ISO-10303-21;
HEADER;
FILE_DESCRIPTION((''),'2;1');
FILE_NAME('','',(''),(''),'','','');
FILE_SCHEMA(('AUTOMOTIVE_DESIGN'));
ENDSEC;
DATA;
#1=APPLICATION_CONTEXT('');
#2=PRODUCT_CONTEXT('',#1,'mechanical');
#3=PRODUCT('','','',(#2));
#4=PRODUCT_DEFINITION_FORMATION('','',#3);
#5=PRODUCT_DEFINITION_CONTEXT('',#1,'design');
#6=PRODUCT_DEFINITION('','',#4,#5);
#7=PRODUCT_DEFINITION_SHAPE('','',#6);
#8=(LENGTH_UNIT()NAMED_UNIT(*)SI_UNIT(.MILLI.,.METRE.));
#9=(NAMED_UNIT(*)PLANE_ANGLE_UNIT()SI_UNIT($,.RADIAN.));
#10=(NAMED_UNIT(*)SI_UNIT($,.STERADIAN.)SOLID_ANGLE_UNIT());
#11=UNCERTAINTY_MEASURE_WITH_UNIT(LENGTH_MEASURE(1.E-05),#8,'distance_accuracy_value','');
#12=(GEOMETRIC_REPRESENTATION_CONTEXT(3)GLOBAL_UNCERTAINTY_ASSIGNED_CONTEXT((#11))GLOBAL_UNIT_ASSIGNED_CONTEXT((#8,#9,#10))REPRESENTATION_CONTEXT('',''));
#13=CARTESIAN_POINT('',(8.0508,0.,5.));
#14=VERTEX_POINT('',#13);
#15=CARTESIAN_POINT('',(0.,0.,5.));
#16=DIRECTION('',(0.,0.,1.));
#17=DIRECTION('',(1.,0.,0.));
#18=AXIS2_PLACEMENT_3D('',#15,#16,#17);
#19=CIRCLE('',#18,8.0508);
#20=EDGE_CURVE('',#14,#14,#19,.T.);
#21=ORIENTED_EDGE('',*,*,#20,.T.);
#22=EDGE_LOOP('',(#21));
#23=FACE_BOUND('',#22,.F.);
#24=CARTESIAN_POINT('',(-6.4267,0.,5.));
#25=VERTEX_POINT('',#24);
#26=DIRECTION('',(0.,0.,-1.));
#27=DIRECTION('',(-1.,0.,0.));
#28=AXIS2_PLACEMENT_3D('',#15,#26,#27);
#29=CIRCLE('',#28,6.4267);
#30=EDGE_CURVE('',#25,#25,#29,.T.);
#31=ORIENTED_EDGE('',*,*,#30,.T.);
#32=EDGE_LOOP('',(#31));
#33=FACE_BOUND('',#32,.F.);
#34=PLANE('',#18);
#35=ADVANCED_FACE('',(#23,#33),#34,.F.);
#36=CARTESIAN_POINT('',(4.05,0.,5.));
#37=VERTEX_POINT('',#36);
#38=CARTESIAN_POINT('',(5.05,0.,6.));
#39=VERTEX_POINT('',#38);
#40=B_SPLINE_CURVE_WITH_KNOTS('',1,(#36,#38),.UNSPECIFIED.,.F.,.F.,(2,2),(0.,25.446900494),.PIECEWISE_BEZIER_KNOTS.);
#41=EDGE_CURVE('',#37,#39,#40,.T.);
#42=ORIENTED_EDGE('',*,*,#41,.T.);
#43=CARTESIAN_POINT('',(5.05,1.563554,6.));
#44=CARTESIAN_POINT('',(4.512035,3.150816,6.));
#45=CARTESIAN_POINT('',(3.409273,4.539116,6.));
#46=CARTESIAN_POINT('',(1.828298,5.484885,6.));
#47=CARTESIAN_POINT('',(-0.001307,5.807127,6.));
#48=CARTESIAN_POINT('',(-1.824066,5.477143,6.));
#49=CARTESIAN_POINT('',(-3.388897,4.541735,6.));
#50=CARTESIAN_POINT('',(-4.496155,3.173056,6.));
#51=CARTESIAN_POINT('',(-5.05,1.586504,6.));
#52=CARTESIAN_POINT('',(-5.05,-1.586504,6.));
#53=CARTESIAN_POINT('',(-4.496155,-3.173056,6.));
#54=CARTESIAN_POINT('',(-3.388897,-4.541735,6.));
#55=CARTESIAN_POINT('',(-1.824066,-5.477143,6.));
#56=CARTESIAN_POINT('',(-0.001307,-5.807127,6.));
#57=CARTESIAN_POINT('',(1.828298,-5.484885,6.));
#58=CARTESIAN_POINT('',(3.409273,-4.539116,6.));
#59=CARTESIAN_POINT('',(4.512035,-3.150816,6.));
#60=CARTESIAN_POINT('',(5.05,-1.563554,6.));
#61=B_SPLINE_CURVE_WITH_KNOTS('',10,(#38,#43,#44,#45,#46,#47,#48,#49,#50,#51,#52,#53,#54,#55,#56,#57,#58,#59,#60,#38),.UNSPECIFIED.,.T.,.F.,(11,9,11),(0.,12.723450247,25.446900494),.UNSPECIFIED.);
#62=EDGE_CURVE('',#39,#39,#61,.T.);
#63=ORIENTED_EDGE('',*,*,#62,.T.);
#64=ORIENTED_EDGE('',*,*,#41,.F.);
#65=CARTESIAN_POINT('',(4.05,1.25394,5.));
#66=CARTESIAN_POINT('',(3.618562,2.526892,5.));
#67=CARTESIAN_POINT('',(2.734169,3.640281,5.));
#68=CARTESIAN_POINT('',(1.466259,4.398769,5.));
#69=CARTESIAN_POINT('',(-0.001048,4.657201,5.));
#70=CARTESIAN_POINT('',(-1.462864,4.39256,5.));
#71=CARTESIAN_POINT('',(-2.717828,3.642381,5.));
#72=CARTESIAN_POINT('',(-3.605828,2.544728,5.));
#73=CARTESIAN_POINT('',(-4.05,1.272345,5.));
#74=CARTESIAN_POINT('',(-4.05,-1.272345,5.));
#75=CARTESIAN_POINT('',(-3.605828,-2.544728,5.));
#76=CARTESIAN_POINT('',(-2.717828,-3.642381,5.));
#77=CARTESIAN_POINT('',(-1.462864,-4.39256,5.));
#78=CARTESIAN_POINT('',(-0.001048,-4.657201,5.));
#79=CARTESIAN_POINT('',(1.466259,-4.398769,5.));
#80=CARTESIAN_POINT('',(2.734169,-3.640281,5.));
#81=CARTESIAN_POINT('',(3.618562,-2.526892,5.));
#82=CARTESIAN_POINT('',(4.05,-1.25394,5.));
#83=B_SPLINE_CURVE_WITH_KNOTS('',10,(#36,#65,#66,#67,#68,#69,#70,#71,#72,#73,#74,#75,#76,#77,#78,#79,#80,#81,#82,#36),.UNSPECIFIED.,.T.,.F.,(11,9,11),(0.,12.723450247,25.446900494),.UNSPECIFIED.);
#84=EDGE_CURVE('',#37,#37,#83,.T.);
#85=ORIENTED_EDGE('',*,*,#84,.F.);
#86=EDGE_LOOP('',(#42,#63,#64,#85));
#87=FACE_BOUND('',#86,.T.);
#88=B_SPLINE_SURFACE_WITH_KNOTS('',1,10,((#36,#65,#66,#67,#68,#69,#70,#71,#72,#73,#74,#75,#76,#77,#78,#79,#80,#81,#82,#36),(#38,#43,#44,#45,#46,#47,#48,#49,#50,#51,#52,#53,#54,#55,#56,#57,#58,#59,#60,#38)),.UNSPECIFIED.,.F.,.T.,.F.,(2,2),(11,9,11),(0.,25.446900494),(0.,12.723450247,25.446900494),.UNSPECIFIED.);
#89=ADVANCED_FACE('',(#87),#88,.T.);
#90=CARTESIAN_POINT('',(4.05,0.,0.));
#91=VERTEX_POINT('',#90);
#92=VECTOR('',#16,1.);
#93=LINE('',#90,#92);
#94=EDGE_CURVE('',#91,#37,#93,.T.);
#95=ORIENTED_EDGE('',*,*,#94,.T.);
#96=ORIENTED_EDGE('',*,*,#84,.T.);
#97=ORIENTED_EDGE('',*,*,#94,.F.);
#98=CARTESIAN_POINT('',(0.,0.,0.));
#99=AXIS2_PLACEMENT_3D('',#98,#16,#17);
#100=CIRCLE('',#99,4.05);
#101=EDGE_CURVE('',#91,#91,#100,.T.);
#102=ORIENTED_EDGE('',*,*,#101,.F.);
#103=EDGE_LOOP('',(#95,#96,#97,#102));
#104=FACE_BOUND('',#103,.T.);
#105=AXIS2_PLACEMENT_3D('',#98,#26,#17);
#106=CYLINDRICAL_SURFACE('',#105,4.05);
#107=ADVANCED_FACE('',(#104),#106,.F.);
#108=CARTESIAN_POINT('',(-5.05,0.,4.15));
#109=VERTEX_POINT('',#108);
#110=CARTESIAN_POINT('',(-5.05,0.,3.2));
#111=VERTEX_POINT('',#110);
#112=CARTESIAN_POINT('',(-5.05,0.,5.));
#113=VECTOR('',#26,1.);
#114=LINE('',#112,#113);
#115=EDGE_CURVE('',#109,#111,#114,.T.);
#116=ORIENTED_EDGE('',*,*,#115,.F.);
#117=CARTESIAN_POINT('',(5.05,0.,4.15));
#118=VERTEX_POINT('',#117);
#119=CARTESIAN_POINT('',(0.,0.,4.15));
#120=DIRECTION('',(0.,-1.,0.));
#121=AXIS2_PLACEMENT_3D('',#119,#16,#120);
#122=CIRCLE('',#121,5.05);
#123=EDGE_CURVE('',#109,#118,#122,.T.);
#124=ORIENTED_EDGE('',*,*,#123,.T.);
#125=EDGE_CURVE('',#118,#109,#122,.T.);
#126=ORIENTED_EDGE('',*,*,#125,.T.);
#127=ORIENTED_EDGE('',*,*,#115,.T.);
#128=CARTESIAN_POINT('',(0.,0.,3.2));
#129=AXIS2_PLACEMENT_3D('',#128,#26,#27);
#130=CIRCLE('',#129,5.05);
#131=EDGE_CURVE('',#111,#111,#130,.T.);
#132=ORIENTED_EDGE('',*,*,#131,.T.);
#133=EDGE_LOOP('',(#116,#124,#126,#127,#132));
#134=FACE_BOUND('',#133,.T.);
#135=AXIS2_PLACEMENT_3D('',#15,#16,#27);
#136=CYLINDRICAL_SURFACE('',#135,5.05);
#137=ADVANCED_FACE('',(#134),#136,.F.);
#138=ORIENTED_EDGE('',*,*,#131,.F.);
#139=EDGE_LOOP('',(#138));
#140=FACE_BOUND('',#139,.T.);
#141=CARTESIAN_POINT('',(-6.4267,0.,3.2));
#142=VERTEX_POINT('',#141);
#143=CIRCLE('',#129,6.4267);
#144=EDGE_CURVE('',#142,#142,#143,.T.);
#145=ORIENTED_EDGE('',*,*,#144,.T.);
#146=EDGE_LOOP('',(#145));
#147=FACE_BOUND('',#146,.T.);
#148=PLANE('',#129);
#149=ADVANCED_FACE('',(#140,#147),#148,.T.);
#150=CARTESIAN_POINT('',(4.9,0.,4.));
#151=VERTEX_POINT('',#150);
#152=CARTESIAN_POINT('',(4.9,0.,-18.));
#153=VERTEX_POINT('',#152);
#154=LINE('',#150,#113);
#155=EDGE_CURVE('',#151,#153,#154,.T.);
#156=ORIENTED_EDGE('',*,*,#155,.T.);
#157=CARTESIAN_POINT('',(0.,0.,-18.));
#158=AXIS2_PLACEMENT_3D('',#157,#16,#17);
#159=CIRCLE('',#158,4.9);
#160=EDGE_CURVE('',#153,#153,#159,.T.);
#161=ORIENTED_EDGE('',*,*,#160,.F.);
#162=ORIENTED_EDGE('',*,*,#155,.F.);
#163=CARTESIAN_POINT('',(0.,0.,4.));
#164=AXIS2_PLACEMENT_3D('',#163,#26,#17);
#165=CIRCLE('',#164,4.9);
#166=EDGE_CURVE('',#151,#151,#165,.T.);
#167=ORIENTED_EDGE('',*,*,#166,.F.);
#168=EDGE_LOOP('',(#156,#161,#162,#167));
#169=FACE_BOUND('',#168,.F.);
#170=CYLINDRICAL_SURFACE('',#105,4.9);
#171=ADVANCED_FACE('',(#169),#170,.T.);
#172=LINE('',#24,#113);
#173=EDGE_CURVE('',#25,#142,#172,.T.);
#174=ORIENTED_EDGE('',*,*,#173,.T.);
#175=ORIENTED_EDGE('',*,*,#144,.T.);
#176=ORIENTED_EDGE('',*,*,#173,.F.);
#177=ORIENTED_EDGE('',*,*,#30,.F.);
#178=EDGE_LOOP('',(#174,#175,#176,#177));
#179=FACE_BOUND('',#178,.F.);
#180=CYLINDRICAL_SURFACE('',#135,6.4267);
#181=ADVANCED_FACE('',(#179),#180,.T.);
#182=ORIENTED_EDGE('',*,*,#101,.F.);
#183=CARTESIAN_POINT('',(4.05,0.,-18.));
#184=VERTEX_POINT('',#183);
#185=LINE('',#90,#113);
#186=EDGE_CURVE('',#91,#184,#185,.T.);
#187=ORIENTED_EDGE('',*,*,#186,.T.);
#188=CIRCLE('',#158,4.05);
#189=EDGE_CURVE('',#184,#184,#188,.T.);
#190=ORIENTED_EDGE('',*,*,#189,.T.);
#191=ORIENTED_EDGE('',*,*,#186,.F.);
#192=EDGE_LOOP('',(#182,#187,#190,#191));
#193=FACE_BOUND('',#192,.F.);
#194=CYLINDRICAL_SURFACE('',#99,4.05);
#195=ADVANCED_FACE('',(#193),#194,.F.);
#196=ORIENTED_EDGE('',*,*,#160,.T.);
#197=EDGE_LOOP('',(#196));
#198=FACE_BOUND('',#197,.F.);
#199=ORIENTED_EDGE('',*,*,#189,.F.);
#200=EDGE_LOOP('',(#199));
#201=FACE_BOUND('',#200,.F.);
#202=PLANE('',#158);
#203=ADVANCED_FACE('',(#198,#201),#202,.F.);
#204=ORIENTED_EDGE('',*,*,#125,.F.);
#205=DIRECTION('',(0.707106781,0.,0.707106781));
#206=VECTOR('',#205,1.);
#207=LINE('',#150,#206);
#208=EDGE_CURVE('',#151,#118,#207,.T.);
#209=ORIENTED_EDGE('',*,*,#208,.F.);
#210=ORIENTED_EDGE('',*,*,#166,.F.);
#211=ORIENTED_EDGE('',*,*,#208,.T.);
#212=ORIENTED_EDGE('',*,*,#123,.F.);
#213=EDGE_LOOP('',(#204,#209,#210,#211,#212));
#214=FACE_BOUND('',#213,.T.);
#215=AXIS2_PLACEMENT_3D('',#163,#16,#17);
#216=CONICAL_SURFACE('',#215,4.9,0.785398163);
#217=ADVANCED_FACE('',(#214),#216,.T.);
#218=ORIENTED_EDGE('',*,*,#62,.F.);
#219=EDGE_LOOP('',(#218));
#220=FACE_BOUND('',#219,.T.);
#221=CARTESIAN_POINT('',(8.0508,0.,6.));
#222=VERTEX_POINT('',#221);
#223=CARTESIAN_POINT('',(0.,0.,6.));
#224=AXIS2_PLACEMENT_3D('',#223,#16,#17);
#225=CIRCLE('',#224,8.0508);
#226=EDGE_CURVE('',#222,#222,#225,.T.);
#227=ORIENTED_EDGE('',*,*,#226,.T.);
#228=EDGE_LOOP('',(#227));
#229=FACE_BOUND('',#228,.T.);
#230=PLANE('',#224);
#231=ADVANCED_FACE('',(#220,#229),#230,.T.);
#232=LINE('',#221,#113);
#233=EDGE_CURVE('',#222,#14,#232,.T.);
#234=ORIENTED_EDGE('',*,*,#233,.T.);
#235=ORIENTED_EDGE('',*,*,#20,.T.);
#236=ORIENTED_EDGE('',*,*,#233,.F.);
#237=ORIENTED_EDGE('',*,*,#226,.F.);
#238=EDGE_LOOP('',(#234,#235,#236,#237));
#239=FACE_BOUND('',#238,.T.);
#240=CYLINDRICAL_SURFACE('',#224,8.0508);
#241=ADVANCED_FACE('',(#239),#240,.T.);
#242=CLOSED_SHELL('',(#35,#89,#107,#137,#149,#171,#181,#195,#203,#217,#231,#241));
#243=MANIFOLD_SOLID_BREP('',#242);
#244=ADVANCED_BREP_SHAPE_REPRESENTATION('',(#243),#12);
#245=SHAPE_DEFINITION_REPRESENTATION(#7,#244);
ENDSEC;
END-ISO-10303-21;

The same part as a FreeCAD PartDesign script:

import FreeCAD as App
import Part
import Sketcher
Q = App.Units.Quantity


def edges_at(feature, points):
    """Names of the edges that pass closest to the given points."""
    edges = feature.Shape.Edges
    near = lambda p: min(range(len(edges)), key=lambda i: edges[i].distToShape(Part.Vertex(*p))[0])
    return sorted({f"Edge{near(p) + 1}" for p in points})

doc = App.newDocument("Part")
body = doc.addObject("PartDesign::Body", "Body")

# Sketch on XY plane
sketch1 = body.newObject("Sketcher::SketchObject", "Sketch")
sketch1.AttachmentSupport = (doc.getObject("XY_Plane"), [""])
sketch1.MapMode = "FlatFace"
sketch1.addGeometry([
    Part.Circle(App.Vector(0, 0, 0), App.Vector(0, 0, 1), 4.9),
    Part.Circle(App.Vector(0, 0, 0), App.Vector(0, 0, 1), 4),
], False)
sketch1.addConstraint([
    Sketcher.Constraint("Coincident", 0, 3, -1, 1),
    Sketcher.Constraint("Coincident", 1, 3, -1, 1),
    Sketcher.Constraint("Diameter", 1, Q("8.1 mm")),
    Sketcher.Constraint("Diameter", 0, Q("9.8 mm")),
])
pad1 = body.newObject("PartDesign::Pad", "Pad")
pad1.Profile = sketch1
pad1.Type = "TwoLengths"
pad1.Length = 6
pad1.Length2 = 18

# Sketch on XY plane
sketch2 = body.newObject("Sketcher::SketchObject", "Sketch001")
sketch2.AttachmentSupport = (doc.getObject("XY_Plane"), [""])
sketch2.MapMode = "FlatFace"
sketch2.AttachmentOffset = App.Placement(App.Vector(0, 0, 6), App.Rotation())
sketch2.addGeometry([
    Part.Circle(App.Vector(0, 0, 0), App.Vector(0, 0, 1), 8.1),
    Part.Circle(App.Vector(0, 0, 0), App.Vector(0, 0, 1), 4.9),
], False)
sketch2.addConstraint([
    Sketcher.Constraint("Coincident", 0, 3, -1, 1),
    Sketcher.Constraint("Coincident", 1, 3, -1, 1),
    Sketcher.Constraint("Diameter", 1, Q("9.8 mm")),
    Sketcher.Constraint("Diameter", 0, Q("16.1016 mm")),
])
pad2 = body.newObject("PartDesign::Pad", "Pad001")
pad2.Profile = sketch2
pad2.Length = 1
pad2.Reversed = True
doc.recompute()

chamfer = body.newObject("PartDesign::Chamfer", "Chamfer")
chamfer.Base = (pad2, edges_at(pad2, [(-4.9, 0, 5), (-4.05, 0, 6)]))
chamfer.Size = 1

# Sketch on XY plane
sketch3 = body.newObject("Sketcher::SketchObject", "Sketch002")
sketch3.AttachmentSupport = (doc.getObject("XY_Plane"), [""])
sketch3.MapMode = "FlatFace"
sketch3.AttachmentOffset = App.Placement(App.Vector(0, 0, 5), App.Rotation())
sketch3.addGeometry([
    Part.Circle(App.Vector(0, 0, 0), App.Vector(0, 0, 1), 4.9),
    Part.Circle(App.Vector(0, 0, 0), App.Vector(0, 0, 1), 4.1),
    Part.Circle(App.Vector(0, 0, 0), App.Vector(0, 0, 1), 6.4),
    Part.Circle(App.Vector(0, 0, 0), App.Vector(0, 0, 1), 5),
], False)
sketch3.addConstraint([
    Sketcher.Constraint("Coincident", 0, 3, -1, 1),
    Sketcher.Constraint("Coincident", 1, 3, -1, 1),
    Sketcher.Constraint("Coincident", 2, 3, -1, 1),
    Sketcher.Constraint("Coincident", 3, 3, -1, 1),
    Sketcher.Constraint("Diameter", 0, Q("9.8 mm")),
    Sketcher.Constraint("Diameter", 3, Q("10.1 mm")),
    Sketcher.Constraint("Diameter", 1, Q("8.2116 mm")),
    Sketcher.Constraint("Diameter", 2, Q("12.8534 mm")),
])
pad3 = body.newObject("PartDesign::Pad", "Pad002")
pad3.Profile = sketch3
pad3.Length = 1.8
pad3.Reversed = True

doc.recompute()
